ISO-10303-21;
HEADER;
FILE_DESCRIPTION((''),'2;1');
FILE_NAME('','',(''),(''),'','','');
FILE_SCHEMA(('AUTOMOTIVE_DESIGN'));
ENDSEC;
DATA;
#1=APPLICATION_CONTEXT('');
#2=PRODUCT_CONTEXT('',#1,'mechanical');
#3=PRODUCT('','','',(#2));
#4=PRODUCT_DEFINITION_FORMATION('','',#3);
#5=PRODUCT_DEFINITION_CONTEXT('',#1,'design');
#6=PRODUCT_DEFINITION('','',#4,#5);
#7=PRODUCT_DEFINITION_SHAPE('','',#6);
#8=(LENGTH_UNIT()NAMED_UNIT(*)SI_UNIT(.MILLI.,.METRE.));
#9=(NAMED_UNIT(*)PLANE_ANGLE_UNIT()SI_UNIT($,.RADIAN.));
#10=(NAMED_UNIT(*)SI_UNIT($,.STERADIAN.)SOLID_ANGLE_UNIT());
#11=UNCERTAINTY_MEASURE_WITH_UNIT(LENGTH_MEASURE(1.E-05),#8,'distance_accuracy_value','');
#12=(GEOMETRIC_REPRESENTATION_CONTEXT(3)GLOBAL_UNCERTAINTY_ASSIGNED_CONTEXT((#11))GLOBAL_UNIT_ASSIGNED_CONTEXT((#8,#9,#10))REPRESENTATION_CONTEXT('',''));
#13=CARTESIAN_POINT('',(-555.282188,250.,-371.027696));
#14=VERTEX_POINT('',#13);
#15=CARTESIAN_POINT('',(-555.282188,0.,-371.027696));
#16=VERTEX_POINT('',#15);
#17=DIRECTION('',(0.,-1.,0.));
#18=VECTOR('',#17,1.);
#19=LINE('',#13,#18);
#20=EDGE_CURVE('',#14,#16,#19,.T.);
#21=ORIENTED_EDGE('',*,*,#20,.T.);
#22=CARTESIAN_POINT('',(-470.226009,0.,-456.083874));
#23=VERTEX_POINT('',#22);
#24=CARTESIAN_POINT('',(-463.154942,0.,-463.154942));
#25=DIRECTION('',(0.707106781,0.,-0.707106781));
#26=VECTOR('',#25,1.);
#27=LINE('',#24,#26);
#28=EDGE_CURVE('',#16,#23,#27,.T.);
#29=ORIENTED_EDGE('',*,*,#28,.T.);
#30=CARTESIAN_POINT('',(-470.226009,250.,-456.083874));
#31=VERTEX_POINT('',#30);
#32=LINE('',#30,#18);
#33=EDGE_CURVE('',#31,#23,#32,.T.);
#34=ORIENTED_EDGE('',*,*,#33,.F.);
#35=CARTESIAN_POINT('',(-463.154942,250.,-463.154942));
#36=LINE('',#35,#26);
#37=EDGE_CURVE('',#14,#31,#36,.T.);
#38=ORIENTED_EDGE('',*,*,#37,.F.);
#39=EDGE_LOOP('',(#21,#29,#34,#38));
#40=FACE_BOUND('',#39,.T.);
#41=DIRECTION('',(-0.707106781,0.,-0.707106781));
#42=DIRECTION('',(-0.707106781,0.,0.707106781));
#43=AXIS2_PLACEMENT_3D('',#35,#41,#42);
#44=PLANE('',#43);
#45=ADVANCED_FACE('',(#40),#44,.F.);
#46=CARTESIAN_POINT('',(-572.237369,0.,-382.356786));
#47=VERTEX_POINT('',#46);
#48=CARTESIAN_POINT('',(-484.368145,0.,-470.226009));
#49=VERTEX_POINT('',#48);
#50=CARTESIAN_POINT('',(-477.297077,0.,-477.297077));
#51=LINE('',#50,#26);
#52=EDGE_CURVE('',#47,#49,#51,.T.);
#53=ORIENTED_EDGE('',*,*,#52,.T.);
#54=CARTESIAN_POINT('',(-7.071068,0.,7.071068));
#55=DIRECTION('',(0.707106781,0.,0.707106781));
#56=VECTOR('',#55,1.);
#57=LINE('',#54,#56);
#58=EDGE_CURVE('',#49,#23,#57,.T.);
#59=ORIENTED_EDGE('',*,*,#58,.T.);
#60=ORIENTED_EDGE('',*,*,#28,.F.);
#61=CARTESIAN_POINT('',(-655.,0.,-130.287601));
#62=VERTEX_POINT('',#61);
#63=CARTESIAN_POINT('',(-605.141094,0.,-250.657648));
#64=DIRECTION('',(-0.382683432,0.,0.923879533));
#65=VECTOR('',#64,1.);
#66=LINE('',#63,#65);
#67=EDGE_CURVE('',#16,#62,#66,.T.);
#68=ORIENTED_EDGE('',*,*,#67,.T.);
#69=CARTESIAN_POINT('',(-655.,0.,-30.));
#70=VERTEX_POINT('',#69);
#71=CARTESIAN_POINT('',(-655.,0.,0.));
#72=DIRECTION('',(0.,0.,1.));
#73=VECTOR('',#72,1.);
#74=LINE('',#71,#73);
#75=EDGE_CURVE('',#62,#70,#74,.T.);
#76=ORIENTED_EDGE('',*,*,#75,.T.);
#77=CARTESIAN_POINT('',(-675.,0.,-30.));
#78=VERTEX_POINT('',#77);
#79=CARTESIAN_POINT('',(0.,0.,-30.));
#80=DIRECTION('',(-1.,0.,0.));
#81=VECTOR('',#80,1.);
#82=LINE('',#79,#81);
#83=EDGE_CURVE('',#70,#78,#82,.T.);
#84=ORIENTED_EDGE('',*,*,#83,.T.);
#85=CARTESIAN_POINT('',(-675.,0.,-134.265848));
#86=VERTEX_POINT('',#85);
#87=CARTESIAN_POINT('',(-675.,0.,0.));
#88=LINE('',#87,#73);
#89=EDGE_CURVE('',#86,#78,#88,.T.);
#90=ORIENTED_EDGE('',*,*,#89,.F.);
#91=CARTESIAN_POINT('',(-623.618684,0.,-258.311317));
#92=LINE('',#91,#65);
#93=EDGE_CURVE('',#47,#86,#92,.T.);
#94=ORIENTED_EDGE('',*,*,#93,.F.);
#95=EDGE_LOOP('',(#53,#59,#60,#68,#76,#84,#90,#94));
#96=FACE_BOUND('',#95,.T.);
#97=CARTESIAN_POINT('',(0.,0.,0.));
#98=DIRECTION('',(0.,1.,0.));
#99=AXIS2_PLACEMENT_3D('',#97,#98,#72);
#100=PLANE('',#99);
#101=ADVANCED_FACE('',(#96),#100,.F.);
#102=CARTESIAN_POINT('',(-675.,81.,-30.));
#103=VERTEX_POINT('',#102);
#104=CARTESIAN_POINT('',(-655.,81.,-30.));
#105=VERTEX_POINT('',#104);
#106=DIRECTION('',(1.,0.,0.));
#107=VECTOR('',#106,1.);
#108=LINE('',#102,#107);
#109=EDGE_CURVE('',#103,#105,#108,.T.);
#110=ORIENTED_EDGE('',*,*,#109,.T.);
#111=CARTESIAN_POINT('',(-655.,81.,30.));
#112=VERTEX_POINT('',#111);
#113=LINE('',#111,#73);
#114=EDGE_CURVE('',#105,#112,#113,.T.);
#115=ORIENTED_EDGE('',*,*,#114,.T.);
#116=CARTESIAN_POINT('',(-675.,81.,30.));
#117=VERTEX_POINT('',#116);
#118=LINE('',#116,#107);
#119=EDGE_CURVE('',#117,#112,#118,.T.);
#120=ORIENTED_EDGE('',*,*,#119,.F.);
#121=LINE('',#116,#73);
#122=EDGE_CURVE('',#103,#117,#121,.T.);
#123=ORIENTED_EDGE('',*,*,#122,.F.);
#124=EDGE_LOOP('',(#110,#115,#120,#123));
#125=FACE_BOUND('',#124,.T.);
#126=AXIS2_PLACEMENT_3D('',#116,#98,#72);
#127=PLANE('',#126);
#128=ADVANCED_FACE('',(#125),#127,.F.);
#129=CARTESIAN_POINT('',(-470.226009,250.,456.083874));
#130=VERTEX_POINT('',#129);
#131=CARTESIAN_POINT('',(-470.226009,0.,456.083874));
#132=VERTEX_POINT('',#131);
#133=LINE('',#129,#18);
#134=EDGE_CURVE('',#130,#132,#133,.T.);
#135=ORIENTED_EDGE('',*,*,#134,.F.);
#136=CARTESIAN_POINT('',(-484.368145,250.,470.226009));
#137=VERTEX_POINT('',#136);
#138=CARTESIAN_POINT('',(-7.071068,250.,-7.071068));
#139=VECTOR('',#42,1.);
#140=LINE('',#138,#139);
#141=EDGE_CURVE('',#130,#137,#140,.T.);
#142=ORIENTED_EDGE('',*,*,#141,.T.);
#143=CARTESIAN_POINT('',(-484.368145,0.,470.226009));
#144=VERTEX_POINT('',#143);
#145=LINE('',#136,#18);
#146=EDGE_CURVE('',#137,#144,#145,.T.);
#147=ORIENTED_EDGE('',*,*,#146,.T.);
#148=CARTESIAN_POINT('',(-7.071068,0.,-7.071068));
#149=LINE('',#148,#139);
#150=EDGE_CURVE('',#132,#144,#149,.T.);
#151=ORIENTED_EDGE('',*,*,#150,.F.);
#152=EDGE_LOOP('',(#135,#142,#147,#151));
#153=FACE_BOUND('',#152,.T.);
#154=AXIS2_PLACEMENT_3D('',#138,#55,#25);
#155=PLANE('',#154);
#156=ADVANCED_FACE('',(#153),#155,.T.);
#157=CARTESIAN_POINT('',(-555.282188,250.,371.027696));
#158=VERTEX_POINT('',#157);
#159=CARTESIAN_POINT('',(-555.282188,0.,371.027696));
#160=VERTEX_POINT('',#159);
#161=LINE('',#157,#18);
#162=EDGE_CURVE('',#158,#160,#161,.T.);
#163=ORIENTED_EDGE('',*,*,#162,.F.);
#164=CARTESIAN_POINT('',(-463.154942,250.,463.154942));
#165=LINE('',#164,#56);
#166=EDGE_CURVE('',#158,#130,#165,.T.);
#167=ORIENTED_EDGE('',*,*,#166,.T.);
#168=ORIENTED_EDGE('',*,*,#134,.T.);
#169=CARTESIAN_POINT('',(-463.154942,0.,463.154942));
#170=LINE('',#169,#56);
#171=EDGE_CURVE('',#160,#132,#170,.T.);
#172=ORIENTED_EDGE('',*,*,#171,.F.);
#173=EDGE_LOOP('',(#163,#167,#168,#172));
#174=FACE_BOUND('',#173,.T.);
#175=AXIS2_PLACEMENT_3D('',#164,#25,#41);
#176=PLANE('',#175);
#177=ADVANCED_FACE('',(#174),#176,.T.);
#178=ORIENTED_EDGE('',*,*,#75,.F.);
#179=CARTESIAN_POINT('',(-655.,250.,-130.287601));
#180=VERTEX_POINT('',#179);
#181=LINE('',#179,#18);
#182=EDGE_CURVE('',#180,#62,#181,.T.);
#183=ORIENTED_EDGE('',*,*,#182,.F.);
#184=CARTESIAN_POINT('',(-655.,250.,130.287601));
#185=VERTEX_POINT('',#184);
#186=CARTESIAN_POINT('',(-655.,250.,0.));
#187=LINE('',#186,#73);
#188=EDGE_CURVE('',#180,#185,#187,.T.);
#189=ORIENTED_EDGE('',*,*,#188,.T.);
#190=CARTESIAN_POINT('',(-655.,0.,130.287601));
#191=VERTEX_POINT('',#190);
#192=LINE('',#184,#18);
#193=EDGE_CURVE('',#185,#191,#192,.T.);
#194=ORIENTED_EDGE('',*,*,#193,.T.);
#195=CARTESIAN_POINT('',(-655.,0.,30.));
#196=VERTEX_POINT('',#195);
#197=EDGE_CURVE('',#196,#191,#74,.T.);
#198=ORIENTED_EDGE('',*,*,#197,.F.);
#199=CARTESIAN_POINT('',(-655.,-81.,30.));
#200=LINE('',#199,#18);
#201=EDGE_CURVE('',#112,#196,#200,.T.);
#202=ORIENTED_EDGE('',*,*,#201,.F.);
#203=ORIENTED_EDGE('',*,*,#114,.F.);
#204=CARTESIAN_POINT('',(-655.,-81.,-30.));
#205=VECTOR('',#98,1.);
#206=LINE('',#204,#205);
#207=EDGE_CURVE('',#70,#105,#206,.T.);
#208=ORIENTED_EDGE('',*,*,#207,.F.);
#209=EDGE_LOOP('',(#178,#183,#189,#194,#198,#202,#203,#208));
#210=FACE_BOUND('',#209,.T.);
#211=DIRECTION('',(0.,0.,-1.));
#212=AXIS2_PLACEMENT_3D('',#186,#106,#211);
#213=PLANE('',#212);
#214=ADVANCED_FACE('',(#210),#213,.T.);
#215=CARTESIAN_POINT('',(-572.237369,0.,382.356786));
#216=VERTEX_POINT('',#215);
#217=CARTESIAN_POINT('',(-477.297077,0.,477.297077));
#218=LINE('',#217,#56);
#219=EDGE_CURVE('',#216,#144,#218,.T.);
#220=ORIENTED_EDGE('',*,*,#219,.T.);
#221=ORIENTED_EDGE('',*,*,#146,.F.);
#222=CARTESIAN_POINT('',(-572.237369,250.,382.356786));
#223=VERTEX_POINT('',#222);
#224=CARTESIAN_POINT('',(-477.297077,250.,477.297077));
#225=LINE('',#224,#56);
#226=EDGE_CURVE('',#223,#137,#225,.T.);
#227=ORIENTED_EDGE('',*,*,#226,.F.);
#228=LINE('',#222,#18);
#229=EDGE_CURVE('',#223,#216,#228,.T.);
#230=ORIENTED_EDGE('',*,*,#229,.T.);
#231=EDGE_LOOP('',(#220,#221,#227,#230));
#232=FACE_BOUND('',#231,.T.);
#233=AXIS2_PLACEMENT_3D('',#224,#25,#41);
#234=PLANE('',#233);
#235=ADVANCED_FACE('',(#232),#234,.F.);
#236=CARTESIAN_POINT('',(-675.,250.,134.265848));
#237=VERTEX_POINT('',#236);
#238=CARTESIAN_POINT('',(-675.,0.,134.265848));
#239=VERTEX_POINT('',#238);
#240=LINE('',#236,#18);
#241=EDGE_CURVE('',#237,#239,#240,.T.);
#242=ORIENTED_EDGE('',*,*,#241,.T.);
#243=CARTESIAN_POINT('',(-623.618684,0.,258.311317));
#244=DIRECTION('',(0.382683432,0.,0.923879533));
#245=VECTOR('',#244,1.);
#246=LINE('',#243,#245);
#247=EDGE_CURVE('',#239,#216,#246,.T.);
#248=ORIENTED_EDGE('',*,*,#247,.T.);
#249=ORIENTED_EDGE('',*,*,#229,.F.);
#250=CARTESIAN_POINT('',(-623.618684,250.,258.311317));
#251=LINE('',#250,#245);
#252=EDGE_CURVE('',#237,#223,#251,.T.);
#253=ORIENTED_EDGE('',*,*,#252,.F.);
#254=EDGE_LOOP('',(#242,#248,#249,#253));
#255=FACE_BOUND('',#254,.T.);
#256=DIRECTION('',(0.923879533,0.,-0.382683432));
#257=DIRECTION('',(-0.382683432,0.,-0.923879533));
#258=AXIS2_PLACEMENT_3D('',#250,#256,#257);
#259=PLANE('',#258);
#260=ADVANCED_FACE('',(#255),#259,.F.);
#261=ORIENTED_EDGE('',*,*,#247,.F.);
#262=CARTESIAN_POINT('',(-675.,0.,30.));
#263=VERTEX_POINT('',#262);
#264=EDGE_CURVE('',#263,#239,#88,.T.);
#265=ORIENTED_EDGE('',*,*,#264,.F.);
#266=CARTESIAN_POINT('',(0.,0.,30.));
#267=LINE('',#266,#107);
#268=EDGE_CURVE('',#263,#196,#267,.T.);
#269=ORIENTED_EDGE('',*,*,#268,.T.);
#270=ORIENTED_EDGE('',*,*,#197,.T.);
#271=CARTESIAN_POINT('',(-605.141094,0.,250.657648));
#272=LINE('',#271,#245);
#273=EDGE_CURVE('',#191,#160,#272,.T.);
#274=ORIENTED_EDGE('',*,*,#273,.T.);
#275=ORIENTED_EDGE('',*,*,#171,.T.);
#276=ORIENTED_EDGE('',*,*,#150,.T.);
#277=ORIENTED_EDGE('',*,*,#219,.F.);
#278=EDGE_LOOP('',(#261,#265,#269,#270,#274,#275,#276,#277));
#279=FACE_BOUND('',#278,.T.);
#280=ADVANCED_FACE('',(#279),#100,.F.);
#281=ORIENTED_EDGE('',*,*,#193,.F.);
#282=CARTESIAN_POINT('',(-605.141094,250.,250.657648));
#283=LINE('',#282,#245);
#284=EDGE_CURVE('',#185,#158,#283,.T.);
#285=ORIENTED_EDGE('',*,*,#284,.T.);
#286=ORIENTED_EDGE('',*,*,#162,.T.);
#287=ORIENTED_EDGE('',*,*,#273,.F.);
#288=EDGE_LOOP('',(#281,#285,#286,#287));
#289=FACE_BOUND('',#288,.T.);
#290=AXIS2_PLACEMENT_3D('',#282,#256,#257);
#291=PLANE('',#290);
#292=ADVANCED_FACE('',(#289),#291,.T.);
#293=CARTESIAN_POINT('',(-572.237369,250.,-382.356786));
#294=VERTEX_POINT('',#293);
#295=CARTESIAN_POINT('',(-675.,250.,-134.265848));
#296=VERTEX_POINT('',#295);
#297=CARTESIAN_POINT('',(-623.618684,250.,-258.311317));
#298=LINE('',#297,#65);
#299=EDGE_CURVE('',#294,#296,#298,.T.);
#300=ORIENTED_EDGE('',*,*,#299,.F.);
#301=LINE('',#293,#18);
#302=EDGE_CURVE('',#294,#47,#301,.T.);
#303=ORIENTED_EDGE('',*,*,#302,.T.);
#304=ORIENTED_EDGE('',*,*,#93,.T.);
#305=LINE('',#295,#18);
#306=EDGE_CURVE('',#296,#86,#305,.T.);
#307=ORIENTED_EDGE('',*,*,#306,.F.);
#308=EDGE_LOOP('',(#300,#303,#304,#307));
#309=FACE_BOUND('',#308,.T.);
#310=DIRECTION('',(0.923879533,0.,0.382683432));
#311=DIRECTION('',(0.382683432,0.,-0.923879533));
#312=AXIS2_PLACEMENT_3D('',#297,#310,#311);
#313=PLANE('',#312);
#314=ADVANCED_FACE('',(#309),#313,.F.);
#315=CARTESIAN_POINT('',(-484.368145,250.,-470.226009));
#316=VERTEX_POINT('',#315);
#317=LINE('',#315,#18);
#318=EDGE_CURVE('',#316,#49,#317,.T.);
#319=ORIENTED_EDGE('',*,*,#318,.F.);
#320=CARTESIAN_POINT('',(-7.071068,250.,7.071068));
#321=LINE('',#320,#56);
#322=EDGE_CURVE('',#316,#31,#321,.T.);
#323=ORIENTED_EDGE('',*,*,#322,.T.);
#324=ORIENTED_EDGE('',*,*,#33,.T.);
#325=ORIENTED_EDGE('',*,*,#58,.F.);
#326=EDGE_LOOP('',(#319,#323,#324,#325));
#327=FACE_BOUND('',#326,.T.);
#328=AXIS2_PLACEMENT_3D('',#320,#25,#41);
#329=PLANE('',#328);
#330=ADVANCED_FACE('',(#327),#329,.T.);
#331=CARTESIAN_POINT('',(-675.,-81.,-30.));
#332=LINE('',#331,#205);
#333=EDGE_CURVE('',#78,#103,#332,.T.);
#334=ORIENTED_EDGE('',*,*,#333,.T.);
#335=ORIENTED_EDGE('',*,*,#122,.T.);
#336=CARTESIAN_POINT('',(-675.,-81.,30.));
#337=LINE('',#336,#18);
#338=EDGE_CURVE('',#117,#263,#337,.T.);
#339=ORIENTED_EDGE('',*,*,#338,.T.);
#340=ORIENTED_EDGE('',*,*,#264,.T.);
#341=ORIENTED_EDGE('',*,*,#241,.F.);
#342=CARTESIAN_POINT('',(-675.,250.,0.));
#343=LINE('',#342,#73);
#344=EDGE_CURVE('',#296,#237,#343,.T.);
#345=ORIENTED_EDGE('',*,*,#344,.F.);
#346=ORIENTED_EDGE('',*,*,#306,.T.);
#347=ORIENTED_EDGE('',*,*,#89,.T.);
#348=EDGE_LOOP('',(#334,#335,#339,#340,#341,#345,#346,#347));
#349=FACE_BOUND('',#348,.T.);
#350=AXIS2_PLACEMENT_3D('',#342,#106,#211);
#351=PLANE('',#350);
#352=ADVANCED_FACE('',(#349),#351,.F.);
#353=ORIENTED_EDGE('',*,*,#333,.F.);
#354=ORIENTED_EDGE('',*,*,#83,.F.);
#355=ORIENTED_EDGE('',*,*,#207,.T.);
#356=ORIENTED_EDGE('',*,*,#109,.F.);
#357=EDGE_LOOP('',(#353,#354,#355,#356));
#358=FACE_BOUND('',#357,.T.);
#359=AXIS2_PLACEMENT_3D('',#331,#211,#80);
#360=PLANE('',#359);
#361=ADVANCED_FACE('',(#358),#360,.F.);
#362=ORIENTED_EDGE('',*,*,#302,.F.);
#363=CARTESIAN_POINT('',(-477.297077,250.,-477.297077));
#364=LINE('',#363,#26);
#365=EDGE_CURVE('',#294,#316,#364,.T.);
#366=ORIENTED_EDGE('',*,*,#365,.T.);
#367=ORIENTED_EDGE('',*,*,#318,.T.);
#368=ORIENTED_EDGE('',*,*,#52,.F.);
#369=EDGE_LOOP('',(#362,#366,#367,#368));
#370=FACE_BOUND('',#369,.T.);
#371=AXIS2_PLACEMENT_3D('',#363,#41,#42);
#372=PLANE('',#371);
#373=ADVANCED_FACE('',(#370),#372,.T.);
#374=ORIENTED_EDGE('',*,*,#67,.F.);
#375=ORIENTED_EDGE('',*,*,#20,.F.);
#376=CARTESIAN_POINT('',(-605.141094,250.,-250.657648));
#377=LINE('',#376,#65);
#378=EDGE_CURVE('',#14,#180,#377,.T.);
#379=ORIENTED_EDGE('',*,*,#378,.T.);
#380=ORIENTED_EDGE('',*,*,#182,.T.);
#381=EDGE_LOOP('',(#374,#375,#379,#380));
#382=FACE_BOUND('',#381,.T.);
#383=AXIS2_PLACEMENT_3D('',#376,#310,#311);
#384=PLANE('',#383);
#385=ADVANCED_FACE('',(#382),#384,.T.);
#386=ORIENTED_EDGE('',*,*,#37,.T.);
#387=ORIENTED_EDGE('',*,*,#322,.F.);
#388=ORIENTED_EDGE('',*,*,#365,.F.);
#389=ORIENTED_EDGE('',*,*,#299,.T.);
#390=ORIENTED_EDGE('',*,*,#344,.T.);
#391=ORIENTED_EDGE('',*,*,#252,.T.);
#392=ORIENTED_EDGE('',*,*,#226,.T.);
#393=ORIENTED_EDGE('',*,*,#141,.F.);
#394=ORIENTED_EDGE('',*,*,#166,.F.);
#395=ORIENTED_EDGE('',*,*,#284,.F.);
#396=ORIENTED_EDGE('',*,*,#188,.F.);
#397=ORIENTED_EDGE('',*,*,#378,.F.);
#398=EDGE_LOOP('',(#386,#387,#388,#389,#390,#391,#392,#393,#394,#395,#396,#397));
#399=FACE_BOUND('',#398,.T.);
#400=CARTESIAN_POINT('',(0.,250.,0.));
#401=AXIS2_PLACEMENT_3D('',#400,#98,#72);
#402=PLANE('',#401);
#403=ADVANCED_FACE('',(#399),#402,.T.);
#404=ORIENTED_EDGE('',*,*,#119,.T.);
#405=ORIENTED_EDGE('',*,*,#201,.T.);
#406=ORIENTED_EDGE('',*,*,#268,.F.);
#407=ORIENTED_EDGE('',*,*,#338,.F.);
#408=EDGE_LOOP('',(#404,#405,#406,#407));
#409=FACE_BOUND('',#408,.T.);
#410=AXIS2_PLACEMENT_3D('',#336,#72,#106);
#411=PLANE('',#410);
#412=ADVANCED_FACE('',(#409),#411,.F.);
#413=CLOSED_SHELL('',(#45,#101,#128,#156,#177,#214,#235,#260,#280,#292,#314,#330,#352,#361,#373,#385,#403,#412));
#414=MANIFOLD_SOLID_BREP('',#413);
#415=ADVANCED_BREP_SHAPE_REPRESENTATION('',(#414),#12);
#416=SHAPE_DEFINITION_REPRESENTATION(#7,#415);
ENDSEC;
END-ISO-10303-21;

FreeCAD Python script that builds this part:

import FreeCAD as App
import Part
import Sketcher

V = App.Vector
Q = App.Units.Quantity


def add_polygon(sketch, points):
    """Adds a closed chain of lines whose ends are joined by coincident constraints."""
    first, n = sketch.GeometryCount, len(points)
    for a, b in zip(points, points[1:] + points[:1]):
        sketch.addGeometry(Part.LineSegment(App.Vector(*a, 0), App.Vector(*b, 0)), False)
    for i in range(n):
        sketch.addConstraint(Sketcher.Constraint("Coincident", first + i, 2, first + (i + 1) % n, 1))

doc = App.newDocument("Part")
params = doc.addObject("Spreadsheet::Sheet", "Params")
for row, (alias, value) in enumerate([
    ("sketch1_length", "20 mm"),
    ("pad1_length", "250 mm"),
    ("sketch2_width", "162 mm"),
    ("sketch2_height", "60 mm"),
    ("pocket1_length", "20 mm"),
], start=1):
    params.set(f"A{row}", alias)
    params.set(f"B{row}", "=" + value)
    params.setAlias(f"B{row}", alias)

body = doc.addObject("PartDesign::Body", "Body")

# Sketch on XZ plane
sketch1 = doc.addObject("Sketcher::SketchObject", "Sketch")
body.addObject(sketch1)
sketch1.AttachmentSupport = (doc.XZ_Plane, [""])
sketch1.MapMode = "FlatFace"
add_polygon(sketch1, [(-470, 456), (-555, 371), (-655, 130), (-655, -130), (-555, -371), (-470, -456), (-484, -470), (-572, -382), (-675, -134), (-675, 134), (-572, 382), (-484, 470)])  # lines 0-11
sketch1.addConstraint(Sketcher.Constraint("Vertical", 2))
sketch1.addConstraint(Sketcher.Constraint("Vertical", 8))
sketch1.addConstraint(Sketcher.Constraint("Symmetric", 0, 2, 3, 2, -1))
sketch1.addConstraint(Sketcher.Constraint("Symmetric", 6, 2, 9, 2, -1))
sketch1.addConstraint(Sketcher.Constraint("Symmetric", 5, 2, 10, 2, -1))
sketch1.addConstraint(Sketcher.Constraint("Symmetric", 4, 2, 11, 2, -1))
sketch1.addConstraint(Sketcher.Constraint("Perpendicular", 0, 4))
sketch1.addConstraint(Sketcher.Constraint("Perpendicular", 4, 5))
sketch1.addConstraint(Sketcher.Constraint("Perpendicular", 5, 6))
sketch1.addConstraint(Sketcher.Constraint("Parallel", 3, 7))
sketch1.addConstraint(Sketcher.Constraint("Parallel", 1, 9))
sketch1.addConstraint(Sketcher.Constraint("Equal", 1, 3))
sketch1.addConstraint(Sketcher.Constraint("Distance", 5, Q("20 mm")))
sketch1.addConstraint(Sketcher.Constraint("DistanceX", 1, 2, -1, 1, Q("655 mm")))
sketch1.addConstraint(Sketcher.Constraint("DistanceX", 7, 2, -1, 1, Q("675 mm")))
sketch1.addConstraint(Sketcher.Constraint("Angle", 1, Q("-112.5 deg")))
sketch1.addConstraint(Sketcher.Constraint("DistanceY", 2, 2, 2, 1, Q("260.575201 mm")))
sketch1.addConstraint(Sketcher.Constraint("Distance", 0, Q("120.287601 mm")))
sketch1.addConstraint(Sketcher.Constraint("Distance", 1, Q("260.575201 mm")))
sketch1.addConstraint(Sketcher.Constraint("DistanceY", 8, 1, 8, 2, Q("268.531696 mm")))
sketch1.setExpression("Constraints[24]", "Params.sketch1_length")
pad1 = doc.addObject("PartDesign::Pad", "Pad")
body.addObject(pad1)
pad1.Profile = sketch1
pad1.setExpression("Length", "Params.pad1_length")
pad1.Reversed = True

# Sketch on YZ plane
sketch2 = doc.addObject("Sketcher::SketchObject", "Sketch001")
body.addObject(sketch2)
sketch2.AttachmentSupport = (doc.YZ_Plane, [""])
sketch2.MapMode = "FlatFace"
sketch2.AttachmentOffset = App.Placement(V(0, 0, -655), App.Rotation())
add_polygon(sketch2, [(81, 30), (-81, 30), (-81, -30), (81, -30)])  # lines 0-3
sketch2.addConstraint(Sketcher.Constraint("Horizontal", 0))
sketch2.addConstraint(Sketcher.Constraint("Vertical", 1))
sketch2.addConstraint(Sketcher.Constraint("Horizontal", 2))
sketch2.addConstraint(Sketcher.Constraint("Vertical", 3))
sketch2.addConstraint(Sketcher.Constraint("Symmetric", 0, 2, 2, 2, -1, 1))
sketch2.addConstraint(Sketcher.Constraint("DistanceX", 0, 2, 0, 1, Q("162 mm")))
sketch2.addConstraint(Sketcher.Constraint("DistanceY", 1, 2, 1, 1, Q("60 mm")))
sketch2.setExpression("Constraints[9]", "Params.sketch2_width")
sketch2.setExpression("Constraints[10]", "Params.sketch2_height")
pocket1 = doc.addObject("PartDesign::Pocket", "Pocket")
body.addObject(pocket1)
pocket1.Profile = sketch2
pocket1.setExpression("Length", "Params.pocket1_length")

doc.recompute()
